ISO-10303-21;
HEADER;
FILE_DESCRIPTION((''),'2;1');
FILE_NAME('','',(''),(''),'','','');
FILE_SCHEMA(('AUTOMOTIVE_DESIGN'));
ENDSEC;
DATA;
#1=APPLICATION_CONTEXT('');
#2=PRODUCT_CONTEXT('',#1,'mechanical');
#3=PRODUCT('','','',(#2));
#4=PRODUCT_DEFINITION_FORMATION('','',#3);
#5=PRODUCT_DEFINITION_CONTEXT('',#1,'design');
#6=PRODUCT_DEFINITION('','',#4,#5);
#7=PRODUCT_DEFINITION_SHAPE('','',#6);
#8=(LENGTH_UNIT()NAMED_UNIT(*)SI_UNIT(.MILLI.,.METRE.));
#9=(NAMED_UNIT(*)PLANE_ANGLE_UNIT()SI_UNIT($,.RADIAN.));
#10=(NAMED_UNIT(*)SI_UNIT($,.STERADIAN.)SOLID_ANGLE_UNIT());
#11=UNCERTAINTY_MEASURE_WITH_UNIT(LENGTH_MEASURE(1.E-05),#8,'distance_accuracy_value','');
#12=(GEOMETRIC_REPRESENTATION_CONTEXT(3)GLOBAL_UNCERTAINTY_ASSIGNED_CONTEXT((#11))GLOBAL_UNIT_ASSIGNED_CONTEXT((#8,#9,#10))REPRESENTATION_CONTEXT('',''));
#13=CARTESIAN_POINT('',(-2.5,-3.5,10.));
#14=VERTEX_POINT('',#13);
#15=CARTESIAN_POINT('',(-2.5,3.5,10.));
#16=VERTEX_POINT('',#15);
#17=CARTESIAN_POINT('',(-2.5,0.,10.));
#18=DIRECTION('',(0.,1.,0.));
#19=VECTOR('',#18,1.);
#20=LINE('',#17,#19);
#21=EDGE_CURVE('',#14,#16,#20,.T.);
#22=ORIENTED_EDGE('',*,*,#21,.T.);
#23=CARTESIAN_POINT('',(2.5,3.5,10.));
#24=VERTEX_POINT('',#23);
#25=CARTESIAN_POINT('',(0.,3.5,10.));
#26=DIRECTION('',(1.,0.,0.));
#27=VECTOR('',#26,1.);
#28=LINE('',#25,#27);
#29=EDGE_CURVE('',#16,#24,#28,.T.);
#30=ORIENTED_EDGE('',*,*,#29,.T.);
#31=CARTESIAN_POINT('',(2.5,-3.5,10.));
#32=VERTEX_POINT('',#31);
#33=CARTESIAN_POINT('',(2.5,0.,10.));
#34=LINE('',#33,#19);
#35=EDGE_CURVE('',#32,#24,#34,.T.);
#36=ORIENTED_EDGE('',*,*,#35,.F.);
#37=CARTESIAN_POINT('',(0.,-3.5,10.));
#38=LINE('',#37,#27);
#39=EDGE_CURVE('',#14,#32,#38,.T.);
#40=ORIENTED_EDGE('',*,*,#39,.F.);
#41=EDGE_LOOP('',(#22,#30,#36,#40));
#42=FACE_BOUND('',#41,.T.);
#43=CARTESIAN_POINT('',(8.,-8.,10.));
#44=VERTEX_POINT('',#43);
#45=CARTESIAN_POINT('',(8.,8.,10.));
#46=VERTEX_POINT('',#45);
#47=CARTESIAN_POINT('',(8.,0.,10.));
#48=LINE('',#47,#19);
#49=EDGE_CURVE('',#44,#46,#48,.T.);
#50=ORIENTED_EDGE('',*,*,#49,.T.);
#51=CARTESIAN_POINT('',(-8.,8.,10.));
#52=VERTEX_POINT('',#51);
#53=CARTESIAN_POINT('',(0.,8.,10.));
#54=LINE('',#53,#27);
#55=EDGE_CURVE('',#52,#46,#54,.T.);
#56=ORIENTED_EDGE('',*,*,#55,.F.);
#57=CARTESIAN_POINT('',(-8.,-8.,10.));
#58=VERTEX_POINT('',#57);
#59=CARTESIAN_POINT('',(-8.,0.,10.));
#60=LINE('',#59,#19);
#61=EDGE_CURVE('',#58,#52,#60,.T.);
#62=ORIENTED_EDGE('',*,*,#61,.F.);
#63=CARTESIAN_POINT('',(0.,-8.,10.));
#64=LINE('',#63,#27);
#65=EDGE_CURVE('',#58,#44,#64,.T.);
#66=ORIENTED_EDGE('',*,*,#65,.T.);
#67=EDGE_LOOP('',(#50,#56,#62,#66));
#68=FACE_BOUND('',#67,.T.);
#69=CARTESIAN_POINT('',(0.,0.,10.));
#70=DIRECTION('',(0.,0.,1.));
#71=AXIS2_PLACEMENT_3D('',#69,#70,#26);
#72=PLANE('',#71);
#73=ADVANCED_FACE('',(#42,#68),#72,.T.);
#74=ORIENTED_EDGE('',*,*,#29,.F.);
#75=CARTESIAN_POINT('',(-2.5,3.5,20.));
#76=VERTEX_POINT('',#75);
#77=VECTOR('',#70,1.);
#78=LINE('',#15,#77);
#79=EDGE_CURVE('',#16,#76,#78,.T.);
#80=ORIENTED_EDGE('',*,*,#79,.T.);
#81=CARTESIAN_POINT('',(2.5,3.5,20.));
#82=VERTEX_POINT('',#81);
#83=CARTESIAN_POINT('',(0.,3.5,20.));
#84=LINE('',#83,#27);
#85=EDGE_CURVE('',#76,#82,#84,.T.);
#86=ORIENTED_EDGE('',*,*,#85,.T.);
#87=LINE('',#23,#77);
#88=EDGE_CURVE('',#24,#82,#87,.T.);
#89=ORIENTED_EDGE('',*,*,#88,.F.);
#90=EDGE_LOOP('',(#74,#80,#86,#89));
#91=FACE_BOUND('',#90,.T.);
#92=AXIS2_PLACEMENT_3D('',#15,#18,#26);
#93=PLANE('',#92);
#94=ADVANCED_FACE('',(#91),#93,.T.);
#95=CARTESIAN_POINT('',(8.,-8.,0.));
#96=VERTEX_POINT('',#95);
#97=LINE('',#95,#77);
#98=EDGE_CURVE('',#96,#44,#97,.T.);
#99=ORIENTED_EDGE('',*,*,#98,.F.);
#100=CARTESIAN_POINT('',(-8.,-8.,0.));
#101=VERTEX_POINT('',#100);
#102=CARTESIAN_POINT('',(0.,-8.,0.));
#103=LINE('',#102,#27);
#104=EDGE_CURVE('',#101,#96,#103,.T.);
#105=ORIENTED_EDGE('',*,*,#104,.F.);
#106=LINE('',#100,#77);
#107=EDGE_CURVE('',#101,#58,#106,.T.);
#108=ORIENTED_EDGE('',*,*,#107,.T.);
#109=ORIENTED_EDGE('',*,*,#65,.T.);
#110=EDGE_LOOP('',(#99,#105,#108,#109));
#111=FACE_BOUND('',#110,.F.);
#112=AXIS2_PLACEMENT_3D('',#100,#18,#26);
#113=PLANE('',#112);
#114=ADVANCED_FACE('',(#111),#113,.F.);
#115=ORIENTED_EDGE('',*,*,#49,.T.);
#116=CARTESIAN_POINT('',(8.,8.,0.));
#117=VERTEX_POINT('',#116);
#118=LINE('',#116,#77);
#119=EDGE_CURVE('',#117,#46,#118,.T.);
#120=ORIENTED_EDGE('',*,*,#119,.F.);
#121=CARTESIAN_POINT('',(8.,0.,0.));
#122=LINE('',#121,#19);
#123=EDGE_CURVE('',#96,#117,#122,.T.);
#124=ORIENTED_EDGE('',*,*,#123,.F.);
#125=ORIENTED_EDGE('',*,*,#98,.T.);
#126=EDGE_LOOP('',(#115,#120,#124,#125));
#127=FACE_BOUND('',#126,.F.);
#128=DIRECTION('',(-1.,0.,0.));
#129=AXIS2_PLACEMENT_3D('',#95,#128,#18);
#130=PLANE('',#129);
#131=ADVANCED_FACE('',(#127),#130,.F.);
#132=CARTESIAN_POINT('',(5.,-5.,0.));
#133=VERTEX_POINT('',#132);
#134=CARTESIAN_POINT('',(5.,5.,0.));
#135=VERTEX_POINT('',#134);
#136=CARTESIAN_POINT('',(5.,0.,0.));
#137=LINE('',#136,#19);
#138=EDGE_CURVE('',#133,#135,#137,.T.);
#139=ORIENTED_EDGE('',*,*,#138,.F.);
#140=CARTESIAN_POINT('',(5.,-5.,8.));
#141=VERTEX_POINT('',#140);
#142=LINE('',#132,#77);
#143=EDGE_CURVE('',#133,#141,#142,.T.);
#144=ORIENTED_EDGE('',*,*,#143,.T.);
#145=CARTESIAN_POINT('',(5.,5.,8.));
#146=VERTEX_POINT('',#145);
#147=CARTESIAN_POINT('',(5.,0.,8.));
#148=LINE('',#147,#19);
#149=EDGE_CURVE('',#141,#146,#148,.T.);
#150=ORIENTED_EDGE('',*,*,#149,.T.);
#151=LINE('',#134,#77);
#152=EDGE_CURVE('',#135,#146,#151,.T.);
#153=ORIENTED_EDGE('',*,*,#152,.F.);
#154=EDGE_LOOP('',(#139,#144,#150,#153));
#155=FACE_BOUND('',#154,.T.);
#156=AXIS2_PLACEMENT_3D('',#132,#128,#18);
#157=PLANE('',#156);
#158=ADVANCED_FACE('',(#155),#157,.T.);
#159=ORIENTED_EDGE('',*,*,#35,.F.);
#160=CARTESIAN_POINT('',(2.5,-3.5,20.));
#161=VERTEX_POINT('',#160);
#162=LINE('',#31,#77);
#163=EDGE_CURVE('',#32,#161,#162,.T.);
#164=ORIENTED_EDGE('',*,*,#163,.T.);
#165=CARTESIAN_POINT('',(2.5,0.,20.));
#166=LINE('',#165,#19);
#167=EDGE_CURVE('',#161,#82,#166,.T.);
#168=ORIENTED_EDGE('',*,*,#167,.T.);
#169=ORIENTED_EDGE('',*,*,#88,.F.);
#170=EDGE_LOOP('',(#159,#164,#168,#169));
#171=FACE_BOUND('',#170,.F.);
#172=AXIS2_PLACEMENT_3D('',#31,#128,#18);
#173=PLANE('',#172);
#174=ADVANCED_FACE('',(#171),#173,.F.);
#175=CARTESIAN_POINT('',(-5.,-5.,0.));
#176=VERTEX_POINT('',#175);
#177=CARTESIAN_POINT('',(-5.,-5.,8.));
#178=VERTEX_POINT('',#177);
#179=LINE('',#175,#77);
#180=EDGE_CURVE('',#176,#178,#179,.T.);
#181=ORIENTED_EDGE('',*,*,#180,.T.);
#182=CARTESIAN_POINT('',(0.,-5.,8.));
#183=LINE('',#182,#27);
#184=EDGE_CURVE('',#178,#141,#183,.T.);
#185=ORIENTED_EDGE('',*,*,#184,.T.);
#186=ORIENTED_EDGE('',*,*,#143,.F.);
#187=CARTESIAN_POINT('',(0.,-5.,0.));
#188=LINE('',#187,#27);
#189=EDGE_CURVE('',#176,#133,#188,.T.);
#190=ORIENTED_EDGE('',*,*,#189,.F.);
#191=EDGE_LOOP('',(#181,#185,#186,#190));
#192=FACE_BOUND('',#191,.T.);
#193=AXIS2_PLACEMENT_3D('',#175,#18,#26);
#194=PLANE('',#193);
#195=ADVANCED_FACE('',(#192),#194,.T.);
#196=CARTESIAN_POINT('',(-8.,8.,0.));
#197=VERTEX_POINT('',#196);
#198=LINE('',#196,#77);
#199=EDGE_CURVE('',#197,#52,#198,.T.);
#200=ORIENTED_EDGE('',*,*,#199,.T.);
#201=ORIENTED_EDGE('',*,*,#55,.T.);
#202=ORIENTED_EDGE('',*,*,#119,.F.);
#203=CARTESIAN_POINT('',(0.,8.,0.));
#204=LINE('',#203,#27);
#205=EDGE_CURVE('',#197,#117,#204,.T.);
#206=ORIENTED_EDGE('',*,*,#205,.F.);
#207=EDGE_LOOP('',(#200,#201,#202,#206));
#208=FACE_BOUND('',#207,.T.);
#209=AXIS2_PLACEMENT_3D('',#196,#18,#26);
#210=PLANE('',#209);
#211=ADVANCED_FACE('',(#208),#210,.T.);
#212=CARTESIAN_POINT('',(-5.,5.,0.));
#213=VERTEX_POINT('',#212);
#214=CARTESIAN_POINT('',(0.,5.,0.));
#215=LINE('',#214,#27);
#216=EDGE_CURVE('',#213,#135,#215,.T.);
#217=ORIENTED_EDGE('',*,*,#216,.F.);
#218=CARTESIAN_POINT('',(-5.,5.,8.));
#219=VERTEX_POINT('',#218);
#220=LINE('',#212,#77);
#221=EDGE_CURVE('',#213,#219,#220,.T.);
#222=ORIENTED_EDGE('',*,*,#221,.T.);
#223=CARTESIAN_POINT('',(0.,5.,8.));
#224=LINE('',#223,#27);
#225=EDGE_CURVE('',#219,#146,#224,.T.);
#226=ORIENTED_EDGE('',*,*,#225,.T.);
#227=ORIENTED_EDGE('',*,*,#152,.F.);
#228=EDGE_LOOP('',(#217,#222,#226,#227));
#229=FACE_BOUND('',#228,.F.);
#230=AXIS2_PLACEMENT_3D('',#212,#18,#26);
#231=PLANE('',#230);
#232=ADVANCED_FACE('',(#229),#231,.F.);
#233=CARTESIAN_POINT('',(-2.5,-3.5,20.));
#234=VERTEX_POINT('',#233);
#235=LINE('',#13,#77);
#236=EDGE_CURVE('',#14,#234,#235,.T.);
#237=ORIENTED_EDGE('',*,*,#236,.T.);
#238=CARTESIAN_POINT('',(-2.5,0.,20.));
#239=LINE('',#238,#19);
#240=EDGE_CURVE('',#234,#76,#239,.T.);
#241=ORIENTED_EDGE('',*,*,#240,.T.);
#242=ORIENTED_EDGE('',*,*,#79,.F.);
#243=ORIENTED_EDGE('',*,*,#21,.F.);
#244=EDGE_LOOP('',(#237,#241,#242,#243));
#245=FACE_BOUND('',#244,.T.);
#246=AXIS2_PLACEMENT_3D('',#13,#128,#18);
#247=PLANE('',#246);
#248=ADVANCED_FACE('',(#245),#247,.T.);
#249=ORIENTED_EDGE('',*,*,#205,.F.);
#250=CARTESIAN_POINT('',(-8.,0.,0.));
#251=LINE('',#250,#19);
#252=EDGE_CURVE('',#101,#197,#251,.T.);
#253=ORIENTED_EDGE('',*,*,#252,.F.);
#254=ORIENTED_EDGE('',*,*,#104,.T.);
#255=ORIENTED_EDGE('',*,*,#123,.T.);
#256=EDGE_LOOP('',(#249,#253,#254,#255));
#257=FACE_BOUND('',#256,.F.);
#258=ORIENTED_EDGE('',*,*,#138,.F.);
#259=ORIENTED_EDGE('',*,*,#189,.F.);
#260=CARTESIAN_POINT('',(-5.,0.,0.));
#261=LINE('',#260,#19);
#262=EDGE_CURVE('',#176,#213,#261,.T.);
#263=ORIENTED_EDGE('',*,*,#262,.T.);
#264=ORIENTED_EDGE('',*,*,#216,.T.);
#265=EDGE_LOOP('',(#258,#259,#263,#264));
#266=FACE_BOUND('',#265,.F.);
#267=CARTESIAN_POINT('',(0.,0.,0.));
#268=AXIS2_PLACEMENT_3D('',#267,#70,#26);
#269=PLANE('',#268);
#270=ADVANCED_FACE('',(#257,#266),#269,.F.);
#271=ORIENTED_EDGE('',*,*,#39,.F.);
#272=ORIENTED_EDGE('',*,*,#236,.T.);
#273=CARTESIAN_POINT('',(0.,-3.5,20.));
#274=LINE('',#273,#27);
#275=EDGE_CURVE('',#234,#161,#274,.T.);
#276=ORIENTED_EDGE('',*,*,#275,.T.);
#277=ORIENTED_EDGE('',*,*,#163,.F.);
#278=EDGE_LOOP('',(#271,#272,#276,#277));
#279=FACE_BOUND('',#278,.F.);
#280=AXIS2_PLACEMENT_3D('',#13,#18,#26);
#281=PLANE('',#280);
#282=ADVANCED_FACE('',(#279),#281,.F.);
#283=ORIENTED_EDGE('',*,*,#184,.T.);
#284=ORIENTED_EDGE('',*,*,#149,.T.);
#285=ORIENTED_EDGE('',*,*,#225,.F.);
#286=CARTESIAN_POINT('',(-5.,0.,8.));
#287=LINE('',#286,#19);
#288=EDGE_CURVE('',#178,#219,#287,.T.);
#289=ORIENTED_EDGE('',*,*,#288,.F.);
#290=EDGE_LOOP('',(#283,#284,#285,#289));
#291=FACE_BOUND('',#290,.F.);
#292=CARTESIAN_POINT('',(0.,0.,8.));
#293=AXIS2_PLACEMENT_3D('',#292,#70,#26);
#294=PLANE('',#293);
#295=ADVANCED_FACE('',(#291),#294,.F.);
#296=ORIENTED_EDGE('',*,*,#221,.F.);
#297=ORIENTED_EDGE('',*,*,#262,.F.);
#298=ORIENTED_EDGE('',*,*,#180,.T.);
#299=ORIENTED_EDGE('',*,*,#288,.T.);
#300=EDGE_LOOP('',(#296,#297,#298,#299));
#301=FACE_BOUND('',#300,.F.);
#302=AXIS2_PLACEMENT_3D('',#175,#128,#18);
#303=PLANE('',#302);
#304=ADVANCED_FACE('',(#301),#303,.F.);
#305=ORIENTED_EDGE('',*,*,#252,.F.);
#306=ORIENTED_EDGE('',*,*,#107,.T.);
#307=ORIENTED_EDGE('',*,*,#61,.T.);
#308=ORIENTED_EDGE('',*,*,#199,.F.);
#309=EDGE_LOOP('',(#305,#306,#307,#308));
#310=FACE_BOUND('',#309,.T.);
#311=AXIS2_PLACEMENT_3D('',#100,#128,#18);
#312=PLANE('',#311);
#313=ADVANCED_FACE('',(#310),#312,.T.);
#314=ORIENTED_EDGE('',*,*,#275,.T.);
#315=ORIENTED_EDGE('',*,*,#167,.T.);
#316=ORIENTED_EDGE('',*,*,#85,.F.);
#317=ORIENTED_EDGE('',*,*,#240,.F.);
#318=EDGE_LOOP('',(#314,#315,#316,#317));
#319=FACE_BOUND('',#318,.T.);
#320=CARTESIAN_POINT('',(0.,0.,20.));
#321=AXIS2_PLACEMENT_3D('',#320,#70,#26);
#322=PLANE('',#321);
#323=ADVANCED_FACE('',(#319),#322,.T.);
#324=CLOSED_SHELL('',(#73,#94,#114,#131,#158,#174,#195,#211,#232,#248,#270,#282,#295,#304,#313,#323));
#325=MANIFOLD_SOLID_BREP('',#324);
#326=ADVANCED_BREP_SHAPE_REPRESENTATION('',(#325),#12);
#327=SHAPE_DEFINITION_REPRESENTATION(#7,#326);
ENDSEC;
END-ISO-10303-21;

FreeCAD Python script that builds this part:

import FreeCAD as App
import Part
import Sketcher


def add_polygon(sketch, points):
    """Adds a closed chain of lines whose ends are joined by coincident constraints."""
    first, n = sketch.GeometryCount, len(points)
    for a, b in zip(points, points[1:] + points[:1]):
        sketch.addGeometry(Part.LineSegment(App.Vector(*a, 0), App.Vector(*b, 0)), False)
    for i in range(n):
        sketch.addConstraint(Sketcher.Constraint("Coincident", first + i, 2, first + (i + 1) % n, 1))

doc = App.newDocument("Part")
body = doc.addObject("PartDesign::Body", "Body")

sketch1 = body.newObject("Sketcher::SketchObject", "Sketch")
sketch1.AttachmentSupport = (doc.getObject("XY_Plane"), [""])
sketch1.MapMode = "FlatFace"
add_polygon(sketch1, [(-5, 5), (-5, -5), (5, -5), (5, 5)])
sketch1.addConstraint(Sketcher.Constraint("Vertical", 0))
sketch1.addConstraint(Sketcher.Constraint("Horizontal", 1))
sketch1.addConstraint(Sketcher.Constraint("Vertical", 2))
sketch1.addConstraint(Sketcher.Constraint("Horizontal", 3))
sketch1.addConstraint(Sketcher.Constraint("Symmetric", 0, 2, 2, 2, -1, 1))
sketch1.addConstraint(Sketcher.Constraint("Equal", 3, 0))
sketch1.addConstraint(Sketcher.Constraint("DistanceX", 1, 1, 1, 2, 10.0))
pad1 = body.newObject("PartDesign::Pad", "Pad")
pad1.Profile = sketch1
pad1.Length = 8
body2 = doc.addObject("PartDesign::Body", "Body001")

sketch2 = body2.newObject("Sketcher::SketchObject", "Sketch001")
sketch2.AttachmentSupport = (doc.getObject("XY_Plane001"), [""])
sketch2.MapMode = "FlatFace"
sketch2.AttachmentOffset = App.Placement(App.Vector(0, 0, 10), App.Rotation())
add_polygon(sketch2, [(-2, 4), (-2, -4), (2, -4), (2, 4)])
sketch2.addConstraint(Sketcher.Constraint("Vertical", 0))
sketch2.addConstraint(Sketcher.Constraint("Horizontal", 1))
sketch2.addConstraint(Sketcher.Constraint("Vertical", 2))
sketch2.addConstraint(Sketcher.Constraint("Horizontal", 3))
sketch2.addConstraint(Sketcher.Constraint("Symmetric", 0, 2, 2, 2, -1, 1))
sketch2.addConstraint(Sketcher.Constraint("DistanceX", 1, 1, 1, 2, 5.0))
sketch2.addConstraint(Sketcher.Constraint("DistanceY", 0, 2, 0, 1, 7.0))
pad2 = body2.newObject("PartDesign::Pad", "Pad001")
pad2.Profile = sketch2
pad2.Length = 10
body3 = doc.addObject("PartDesign::Body", "Body002")

sketch3 = body3.newObject("Sketcher::SketchObject", "Sketch002")
sketch3.AttachmentSupport = (doc.getObject("XY_Plane002"), [""])
sketch3.MapMode = "FlatFace"
add_polygon(sketch3, [(-8, 8), (-8, -8), (8, -8), (8, 8)])
sketch3.addConstraint(Sketcher.Constraint("Vertical", 0))
sketch3.addConstraint(Sketcher.Constraint("Horizontal", 1))
sketch3.addConstraint(Sketcher.Constraint("Vertical", 2))
sketch3.addConstraint(Sketcher.Constraint("Horizontal", 3))
sketch3.addConstraint(Sketcher.Constraint("Symmetric", 0, 2, 2, 2, -1, 1))
sketch3.addConstraint(Sketcher.Constraint("Equal", 3, 0))
sketch3.addConstraint(Sketcher.Constraint("DistanceX", 1, 1, 1, 2, 16.0))
pad3 = body3.newObject("PartDesign::Pad", "Pad002")
pad3.Profile = sketch3
pad3.Length = 10
doc.recompute()

boolean = body3.newObject("PartDesign::Boolean", "Boolean")
boolean.Type = "Fuse"
boolean.addObjects([body2])
doc.recompute()

boolean2 = body3.newObject("PartDesign::Boolean", "Boolean001")
boolean2.Type = "Cut"
boolean2.addObjects([body])

doc.recompute()
